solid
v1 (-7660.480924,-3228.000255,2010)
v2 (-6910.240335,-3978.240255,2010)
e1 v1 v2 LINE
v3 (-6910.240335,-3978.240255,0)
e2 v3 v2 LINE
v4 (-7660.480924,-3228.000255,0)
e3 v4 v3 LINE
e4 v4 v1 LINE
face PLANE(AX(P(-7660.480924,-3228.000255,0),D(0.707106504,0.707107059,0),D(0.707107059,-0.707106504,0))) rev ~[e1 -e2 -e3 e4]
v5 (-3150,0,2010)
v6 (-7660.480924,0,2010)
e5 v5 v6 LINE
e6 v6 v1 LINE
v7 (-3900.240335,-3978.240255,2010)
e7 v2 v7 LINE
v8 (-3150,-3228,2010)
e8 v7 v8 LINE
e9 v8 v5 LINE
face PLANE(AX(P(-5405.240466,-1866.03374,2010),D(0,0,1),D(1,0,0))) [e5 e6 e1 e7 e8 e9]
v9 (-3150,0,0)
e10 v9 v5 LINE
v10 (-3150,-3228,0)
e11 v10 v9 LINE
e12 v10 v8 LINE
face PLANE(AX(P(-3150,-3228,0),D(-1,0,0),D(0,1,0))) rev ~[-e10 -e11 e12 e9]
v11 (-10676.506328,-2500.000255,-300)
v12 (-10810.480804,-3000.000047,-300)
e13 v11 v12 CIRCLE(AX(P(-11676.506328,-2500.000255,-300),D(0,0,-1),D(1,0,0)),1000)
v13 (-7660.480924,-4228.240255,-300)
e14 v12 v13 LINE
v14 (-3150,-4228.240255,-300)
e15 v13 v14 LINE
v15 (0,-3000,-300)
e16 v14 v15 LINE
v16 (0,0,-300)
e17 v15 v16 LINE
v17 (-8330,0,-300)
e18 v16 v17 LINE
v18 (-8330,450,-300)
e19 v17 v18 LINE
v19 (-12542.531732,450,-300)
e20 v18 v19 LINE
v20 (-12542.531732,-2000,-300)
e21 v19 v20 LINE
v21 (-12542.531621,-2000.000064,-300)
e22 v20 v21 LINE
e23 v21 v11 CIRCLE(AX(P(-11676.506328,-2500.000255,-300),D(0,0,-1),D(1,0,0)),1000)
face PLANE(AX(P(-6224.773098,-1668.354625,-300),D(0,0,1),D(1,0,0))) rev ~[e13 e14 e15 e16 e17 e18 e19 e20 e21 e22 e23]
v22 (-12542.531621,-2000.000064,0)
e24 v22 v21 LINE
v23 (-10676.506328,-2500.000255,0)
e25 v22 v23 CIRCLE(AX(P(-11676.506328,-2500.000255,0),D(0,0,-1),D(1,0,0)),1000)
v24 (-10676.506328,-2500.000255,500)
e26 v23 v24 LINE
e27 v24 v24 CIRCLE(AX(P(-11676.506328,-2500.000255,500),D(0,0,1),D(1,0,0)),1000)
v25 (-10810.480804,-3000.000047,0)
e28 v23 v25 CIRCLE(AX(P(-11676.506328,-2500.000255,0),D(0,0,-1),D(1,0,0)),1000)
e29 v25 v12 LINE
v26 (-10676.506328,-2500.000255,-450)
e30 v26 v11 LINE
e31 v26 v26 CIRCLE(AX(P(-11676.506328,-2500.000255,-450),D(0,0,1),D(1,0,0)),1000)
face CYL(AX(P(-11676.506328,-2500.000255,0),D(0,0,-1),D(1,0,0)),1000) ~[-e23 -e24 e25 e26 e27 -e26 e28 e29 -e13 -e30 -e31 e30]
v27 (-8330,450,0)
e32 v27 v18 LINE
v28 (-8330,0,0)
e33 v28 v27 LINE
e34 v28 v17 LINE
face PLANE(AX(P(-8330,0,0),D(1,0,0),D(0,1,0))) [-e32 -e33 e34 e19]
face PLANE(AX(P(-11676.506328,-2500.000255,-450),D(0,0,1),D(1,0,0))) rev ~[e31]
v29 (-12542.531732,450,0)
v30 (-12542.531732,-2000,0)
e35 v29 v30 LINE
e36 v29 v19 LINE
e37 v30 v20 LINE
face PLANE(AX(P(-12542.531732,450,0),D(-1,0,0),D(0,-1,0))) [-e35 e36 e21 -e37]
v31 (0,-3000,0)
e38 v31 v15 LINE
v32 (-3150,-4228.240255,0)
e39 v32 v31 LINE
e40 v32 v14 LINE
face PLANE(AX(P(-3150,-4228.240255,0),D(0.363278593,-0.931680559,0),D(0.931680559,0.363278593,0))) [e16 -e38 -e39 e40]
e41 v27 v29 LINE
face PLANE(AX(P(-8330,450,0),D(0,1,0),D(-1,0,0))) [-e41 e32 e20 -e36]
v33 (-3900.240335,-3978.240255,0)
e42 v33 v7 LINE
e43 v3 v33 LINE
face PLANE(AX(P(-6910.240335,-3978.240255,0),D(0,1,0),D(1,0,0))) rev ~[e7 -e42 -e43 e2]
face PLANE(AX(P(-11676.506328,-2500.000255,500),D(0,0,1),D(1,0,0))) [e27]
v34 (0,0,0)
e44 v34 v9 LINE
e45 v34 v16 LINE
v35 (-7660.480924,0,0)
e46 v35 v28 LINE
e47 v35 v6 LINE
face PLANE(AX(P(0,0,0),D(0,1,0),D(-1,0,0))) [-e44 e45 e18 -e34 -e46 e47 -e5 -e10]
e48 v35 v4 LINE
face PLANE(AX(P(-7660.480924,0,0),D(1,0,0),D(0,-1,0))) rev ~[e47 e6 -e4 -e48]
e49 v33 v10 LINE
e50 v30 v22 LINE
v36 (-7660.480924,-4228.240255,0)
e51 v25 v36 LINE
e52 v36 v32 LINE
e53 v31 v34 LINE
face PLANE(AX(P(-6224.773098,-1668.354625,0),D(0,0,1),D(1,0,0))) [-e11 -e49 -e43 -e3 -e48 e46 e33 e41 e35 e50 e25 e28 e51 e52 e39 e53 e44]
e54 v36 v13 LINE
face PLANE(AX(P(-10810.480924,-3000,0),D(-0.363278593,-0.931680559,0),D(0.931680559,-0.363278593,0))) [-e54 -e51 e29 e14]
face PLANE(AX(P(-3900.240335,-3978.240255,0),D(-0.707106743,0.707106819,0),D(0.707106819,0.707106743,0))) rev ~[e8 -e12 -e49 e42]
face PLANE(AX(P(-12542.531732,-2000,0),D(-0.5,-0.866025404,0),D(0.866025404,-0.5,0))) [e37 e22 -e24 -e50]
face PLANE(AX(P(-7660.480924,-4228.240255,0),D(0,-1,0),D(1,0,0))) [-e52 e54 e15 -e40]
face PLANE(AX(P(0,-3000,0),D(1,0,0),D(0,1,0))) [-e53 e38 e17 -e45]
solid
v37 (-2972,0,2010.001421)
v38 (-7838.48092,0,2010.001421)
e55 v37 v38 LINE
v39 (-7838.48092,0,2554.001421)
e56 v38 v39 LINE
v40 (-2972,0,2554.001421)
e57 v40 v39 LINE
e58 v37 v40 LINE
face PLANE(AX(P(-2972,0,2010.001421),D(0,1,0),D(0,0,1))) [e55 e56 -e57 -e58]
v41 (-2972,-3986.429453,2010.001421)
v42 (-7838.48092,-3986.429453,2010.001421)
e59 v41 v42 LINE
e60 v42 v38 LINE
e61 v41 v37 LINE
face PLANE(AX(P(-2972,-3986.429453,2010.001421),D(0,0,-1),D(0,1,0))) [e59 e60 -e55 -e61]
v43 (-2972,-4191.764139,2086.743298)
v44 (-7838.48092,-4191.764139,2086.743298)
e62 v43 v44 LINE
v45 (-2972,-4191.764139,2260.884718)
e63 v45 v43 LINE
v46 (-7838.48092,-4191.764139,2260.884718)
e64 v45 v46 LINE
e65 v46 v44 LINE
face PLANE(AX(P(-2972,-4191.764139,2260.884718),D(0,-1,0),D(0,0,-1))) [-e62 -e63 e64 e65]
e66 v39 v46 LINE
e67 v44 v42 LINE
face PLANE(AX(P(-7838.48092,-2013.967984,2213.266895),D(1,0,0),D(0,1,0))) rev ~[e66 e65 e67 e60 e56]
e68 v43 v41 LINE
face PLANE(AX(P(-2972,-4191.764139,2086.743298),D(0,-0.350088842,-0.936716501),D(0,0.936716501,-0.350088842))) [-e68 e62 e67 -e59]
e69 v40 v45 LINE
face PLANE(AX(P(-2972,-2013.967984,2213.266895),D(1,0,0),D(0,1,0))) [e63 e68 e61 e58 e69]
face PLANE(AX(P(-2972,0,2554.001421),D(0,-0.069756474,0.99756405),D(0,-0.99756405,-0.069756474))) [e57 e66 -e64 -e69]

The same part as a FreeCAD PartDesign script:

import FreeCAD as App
import Part
import Sketcher

V = App.Vector
Q = App.Units.Quantity

doc = App.newDocument("Part")
body = doc.addObject("PartDesign::Body", "Body")

sketch1 = body.newObject("Sketcher::SketchObject", "Sketch")
sketch1.AttachmentSupport = (doc.getObject("XY_Plane"), [""])
sketch1.MapMode = "FlatFace"
sketch1.addGeometry(Part.Circle(V(-11677, -2500, 0), V(0, 0, 1), 1000), False)
sketch1.addConstraint([
    Sketcher.Constraint("Diameter", 0, Q("2000 mm")),
    Sketcher.Constraint("DistanceX", 0, 3, -1, 1, Q("11676.506328 mm")),
    Sketcher.Constraint("DistanceY", 0, 3, -1, 1, Q("2500.000255 mm")),
])
pad1 = body.newObject("PartDesign::Pad", "Pad")
pad1.Profile = sketch1
pad1.Length = 500

sketch2 = body.newObject("Sketcher::SketchObject", "Sketch001")
sketch2.AttachmentSupport = (doc.getObject("XY_Plane"), [""])
sketch2.MapMode = "FlatFace"
sketch2.AttachmentOffset = App.Placement(V(0, 0, 500), App.Rotation())
sketch2.addGeometry(Part.Circle(V(-11677, -2500, 0), V(0, 0, 1), 1000), False)
sketch2.addConstraint([
    Sketcher.Constraint("Diameter", 0, Q("2000 mm")),
    Sketcher.Constraint("DistanceX", 0, 3, -1, 1, Q("11676.506328 mm")),
    Sketcher.Constraint("DistanceY", 0, 3, -1, 1, Q("2500.000255 mm")),
])
pad2 = body.newObject("PartDesign::Pad", "Pad001")
pad2.Profile = sketch2
pad2.Length = 950
pad2.Reversed = True

sketch3 = body.newObject("Sketcher::SketchObject", "Sketch002")
sketch3.AttachmentSupport = (doc.getObject("XY_Plane"), [""])
sketch3.MapMode = "FlatFace"
sketch3.addGeometry([
    Part.LineSegment(V(0, -3000, 0), V(0, 0, 0)),
    Part.LineSegment(V(0, 0, 0), V(-8330, 0, 0)),
    Part.LineSegment(V(-8330, 0, 0), V(-8330, 450, 0)),
    Part.LineSegment(V(-8330, 450, 0), V(-12543, 450, 0)),
    Part.LineSegment(V(-12543, 450, 0), V(-12543, -2000, 0)),
    Part.LineSegment(V(-12543, -2000, 0), V(-10810, -3000, 0)),
    Part.LineSegment(V(-10810, -3000, 0), V(-7660, -4228, 0)),
    Part.LineSegment(V(-7660, -4228, 0), V(-3150, -4228, 0)),
    Part.LineSegment(V(-3150, -4228, 0), V(0, -3000, 0)),
], False)
sketch3.addConstraint([
    Sketcher.Constraint("Coincident", 0, 2, 1, 1),
    Sketcher.Constraint("Coincident", 1, 2, 2, 1),
    Sketcher.Constraint("Coincident", 2, 2, 3, 1),
    Sketcher.Constraint("Coincident", 3, 2, 4, 1),
    Sketcher.Constraint("Coincident", 4, 2, 5, 1),
    Sketcher.Constraint("Coincident", 5, 2, 6, 1),
    Sketcher.Constraint("Coincident", 6, 2, 7, 1),
    Sketcher.Constraint("Coincident", 7, 2, 8, 1),
    Sketcher.Constraint("Coincident", 8, 2, 0, 1),
    Sketcher.Constraint("Vertical", 0),
    Sketcher.Constraint("Horizontal", 1),
    Sketcher.Constraint("Vertical", 2),
    Sketcher.Constraint("Horizontal", 3),
    Sketcher.Constraint("Vertical", 4),
    Sketcher.Constraint("Horizontal", 7),
    Sketcher.Constraint("Coincident", 0, 2, -1, 1),
    Sketcher.Constraint("Horizontal", 5, 2, 8, 2),
    Sketcher.Constraint("Equal", 6, 8),
    Sketcher.Constraint("DistanceX", 1, 2, 1, 1, Q("8330 mm")),
    Sketcher.Constraint("DistanceY", 0, 1, 0, 2, Q("3000 mm")),
    Sketcher.Constraint("DistanceY", 2, 1, 2, 2, Q("450 mm")),
    Sketcher.Constraint("DistanceY", 4, 2, 4, 1, Q("2450 mm")),
    Sketcher.Constraint("Angle", 5, Q("-30 deg")),
    Sketcher.Constraint("DistanceX", 7, 2, -1, 1, Q("3150 mm")),
    Sketcher.Constraint("DistanceX", 3, 2, 3, 1, Q("4212.531732 mm")),
    Sketcher.Constraint("Distance", 6, Q("3380.987152 mm")),
])
pad3 = body.newObject("PartDesign::Pad", "Pad002")
pad3.Profile = sketch3
pad3.Length = 300
pad3.Reversed = True

sketch4 = body.newObject("Sketcher::SketchObject", "Sketch003")
sketch4.AttachmentSupport = (doc.getObject("XY_Plane"), [""])
sketch4.MapMode = "FlatFace"
sketch4.addGeometry([
    Part.LineSegment(V(-7660.480924, 0, 0), V(-7660.480924, -3228.000255, 0)),
    Part.LineSegment(V(-7660.480924, -3228.000255, 0), V(-6910.240335, -3978.240255, 0)),
    Part.LineSegment(V(-6910.240335, -3978.240255, 0), V(-3900.240335, -3978.240255, 0)),
    Part.LineSegment(V(-3900.240335, -3978.240255, 0), V(-3150, -3228, 0)),
    Part.LineSegment(V(-3150, -3228, 0), V(-3150, 0, 0)),
    Part.LineSegment(V(-3150, 0, 0), V(-7660.480924, 0, 0)),
], False)
sketch4.addConstraint([
    Sketcher.Constraint("Coincident", 0, 2, 1, 1),
    Sketcher.Constraint("Coincident", 1, 2, 2, 1),
    Sketcher.Constraint("Coincident", 2, 2, 3, 1),
    Sketcher.Constraint("Coincident", 3, 2, 4, 1),
    Sketcher.Constraint("Coincident", 4, 2, 5, 1),
    Sketcher.Constraint("Coincident", 5, 2, 0, 1),
    Sketcher.Constraint("Vertical", 0),
    Sketcher.Constraint("Horizontal", 2),
    Sketcher.Constraint("Vertical", 4),
    Sketcher.Constraint("Horizontal", 5),
    Sketcher.Constraint("PointOnObject", 4, 2, -1),
    Sketcher.Constraint("Perpendicular", 1, 3),
    Sketcher.Constraint("Equal", 1, 3),
    Sketcher.Constraint("DistanceX", 2, 1, 2, 2, Q("3010 mm")),
    Sketcher.Constraint("DistanceY", 4, 1, 4, 2, Q("3228 mm")),
    Sketcher.Constraint("Angle", 3, Q("44.999997 deg")),
    Sketcher.Constraint("Distance", 1, Q("1061 mm")),
    Sketcher.Constraint("DistanceX", 3, 2, -1, 1, Q("3150 mm")),
])
pad4 = body.newObject("PartDesign::Pad", "Pad003")
pad4.Profile = sketch4
pad4.Length = 2010
body2 = doc.addObject("PartDesign::Body", "Body001")

sketch5 = body2.newObject("Sketcher::SketchObject", "Sketch004")
sketch5.AttachmentSupport = (doc.getObject("YZ_Plane001"), [""])
sketch5.MapMode = "FlatFace"
sketch5.AttachmentOffset = App.Placement(V(0, 0, -2972), App.Rotation())
sketch5.addGeometry([
    Part.LineSegment(V(-3986, 2010, 0), V(0, 2010, 0)),
    Part.LineSegment(V(0, 2010, 0), V(0, 2554, 0)),
    Part.LineSegment(V(0, 2554, 0), V(-4192, 2261, 0)),
    Part.LineSegment(V(-4192, 2261, 0), V(-4192, 2087, 0)),
    Part.LineSegment(V(-4192, 2087, 0), V(-3986, 2010, 0)),
], False)
sketch5.addConstraint([
    Sketcher.Constraint("Coincident", 0, 2, 1, 1),
    Sketcher.Constraint("Coincident", 1, 2, 2, 1),
    Sketcher.Constraint("Coincident", 2, 2, 3, 1),
    Sketcher.Constraint("Coincident", 3, 2, 4, 1),
    Sketcher.Constraint("Coincident", 4, 2, 0, 1),
    Sketcher.Constraint("Horizontal", 0),
    Sketcher.Constraint("Vertical", 1),
    Sketcher.Constraint("Vertical", 3),
    Sketcher.Constraint("PointOnObject", 0, 2, -2),
    Sketcher.Constraint("DistanceY", 1, 1, 1, 2, Q("544 mm")),
    Sketcher.Constraint("Angle", 2, Q("-176 deg")),
    Sketcher.Constraint("Distance", 2, Q("4202 mm")),
    Sketcher.Constraint("DistanceY", 3, 2, 3, 1, Q("174.14142 mm")),
    Sketcher.Constraint("DistanceX", 0, 1, 0, 2, Q("3986.429453 mm")),
    Sketcher.Constraint("DistanceY", -1, 1, 0, 2, Q("2010.001421 mm")),
])
pad5 = body2.newObject("PartDesign::Pad", "Pad004")
pad5.Profile = sketch5
pad5.Length = 4866.48092
pad5.Reversed = True

doc.recompute()
